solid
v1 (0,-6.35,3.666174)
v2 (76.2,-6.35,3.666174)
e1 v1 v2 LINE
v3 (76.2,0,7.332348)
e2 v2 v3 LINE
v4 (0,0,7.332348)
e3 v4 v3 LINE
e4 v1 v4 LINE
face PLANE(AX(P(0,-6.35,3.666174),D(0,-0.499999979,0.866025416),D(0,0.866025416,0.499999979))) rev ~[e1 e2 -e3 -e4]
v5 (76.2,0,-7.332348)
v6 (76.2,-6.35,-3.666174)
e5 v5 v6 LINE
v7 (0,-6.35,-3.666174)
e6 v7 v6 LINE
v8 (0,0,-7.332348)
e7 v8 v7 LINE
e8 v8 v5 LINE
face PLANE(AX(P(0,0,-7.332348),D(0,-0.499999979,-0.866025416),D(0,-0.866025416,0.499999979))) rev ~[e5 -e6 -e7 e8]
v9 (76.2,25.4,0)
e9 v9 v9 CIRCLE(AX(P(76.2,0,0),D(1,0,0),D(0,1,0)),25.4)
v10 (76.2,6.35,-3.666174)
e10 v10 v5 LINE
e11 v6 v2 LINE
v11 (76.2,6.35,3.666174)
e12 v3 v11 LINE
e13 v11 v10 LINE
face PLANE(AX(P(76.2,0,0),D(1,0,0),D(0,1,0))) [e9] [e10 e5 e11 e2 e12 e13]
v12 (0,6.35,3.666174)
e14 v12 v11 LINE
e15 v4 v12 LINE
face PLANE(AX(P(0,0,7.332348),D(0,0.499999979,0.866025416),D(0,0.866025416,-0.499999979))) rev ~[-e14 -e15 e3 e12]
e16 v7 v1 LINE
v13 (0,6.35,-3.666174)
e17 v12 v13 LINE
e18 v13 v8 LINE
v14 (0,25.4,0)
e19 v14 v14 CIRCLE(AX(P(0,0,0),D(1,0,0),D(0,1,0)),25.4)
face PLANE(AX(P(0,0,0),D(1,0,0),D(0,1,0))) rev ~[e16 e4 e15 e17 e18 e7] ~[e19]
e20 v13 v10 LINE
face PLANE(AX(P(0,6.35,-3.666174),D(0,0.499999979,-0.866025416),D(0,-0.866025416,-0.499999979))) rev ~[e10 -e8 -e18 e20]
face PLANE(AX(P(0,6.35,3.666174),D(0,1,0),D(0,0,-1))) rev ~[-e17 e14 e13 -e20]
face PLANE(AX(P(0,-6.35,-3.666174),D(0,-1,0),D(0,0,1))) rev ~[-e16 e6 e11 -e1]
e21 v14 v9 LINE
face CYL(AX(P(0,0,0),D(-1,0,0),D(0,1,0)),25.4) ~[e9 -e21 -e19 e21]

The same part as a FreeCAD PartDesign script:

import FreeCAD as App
import Part
import Sketcher
from FreeCAD import Vector
Q = App.Units.Quantity

doc = App.newDocument("Part")
body = doc.addObject("PartDesign::Body", "Body")

sketch1 = body.newObject("Sketcher::SketchObject", "Sketch")
sketch1.AttachmentSupport = (doc.getObject("YZ_Plane"), [""])
sketch1.MapMode = "FlatFace"
sketch1.addGeometry([
    Part.Circle(Vector(0, 0, 0), Vector(0, 0, 1), 25.4),
    Part.LineSegment(Vector(-6.35, 3.666174, 0), Vector(0, 7.332348, 0)),
    Part.LineSegment(Vector(0, 7.332348, 0), Vector(6.35, 3.666174, 0)),
    Part.LineSegment(Vector(6.35, 3.666174, 0), Vector(6.35, -3.666174, 0)),
    Part.LineSegment(Vector(6.35, -3.666174, 0), Vector(0, -7.332348, 0)),
    Part.LineSegment(Vector(0, -7.332348, 0), Vector(-6.35, -3.666174, 0)),
    Part.LineSegment(Vector(-6.35, -3.666174, 0), Vector(-6.35, 3.666174, 0)),
], False)
sketch1.addConstraint([
    Sketcher.Constraint("Coincident", 1, 2, 2, 1),
    Sketcher.Constraint("Coincident", 2, 2, 3, 1),
    Sketcher.Constraint("Coincident", 3, 2, 4, 1),
    Sketcher.Constraint("Coincident", 4, 2, 5, 1),
    Sketcher.Constraint("Coincident", 5, 2, 6, 1),
    Sketcher.Constraint("Coincident", 6, 2, 1, 1),
    Sketcher.Constraint("Vertical", 3),
    Sketcher.Constraint("Vertical", 6),
    Sketcher.Constraint("Coincident", 0, 3, -1, 1),
    Sketcher.Constraint("Symmetric", 1, 2, 4, 2, -1, 1),
    Sketcher.Constraint("Symmetric", 2, 2, 5, 2, -1, 1),
    Sketcher.Constraint("PointOnObject", 1, 2, -2),
    Sketcher.Constraint("Parallel", 1, 4),
    Sketcher.Constraint("Horizontal", 3, 2, 5, 2),
    Sketcher.Constraint("Diameter", 0, Q("2 in")),
    Sketcher.Constraint("Angle", 1, Q("29.999999 deg")),
    Sketcher.Constraint("DistanceX", 5, 2, 3, 2, Q("0.5 in")),
    Sketcher.Constraint("DistanceY", 3, 2, 3, 1, Q("7.332348 mm")),
])
pad1 = body.newObject("PartDesign::Pad", "Pad")
pad1.Profile = sketch1
pad1.Length = Q("3 in")

doc.recompute()
